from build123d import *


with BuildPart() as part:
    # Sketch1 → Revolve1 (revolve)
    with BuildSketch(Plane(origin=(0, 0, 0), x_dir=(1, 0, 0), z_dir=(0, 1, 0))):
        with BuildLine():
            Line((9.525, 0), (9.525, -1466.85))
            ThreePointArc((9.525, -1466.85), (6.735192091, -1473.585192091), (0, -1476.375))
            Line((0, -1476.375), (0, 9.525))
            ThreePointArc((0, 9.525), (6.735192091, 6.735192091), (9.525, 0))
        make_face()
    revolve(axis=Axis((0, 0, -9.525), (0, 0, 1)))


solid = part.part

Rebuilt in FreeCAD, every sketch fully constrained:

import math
import FreeCAD as App
import Part
import Sketcher
Q = App.Units.Quantity

doc = App.newDocument("Part")
body = doc.addObject("PartDesign::Body", "Body")

sketch1 = doc.addObject("Sketcher::SketchObject", "Sketch")
body.addObject(sketch1)
sketch1.AttachmentSupport = (doc.XZ_Plane, [""])
sketch1.MapMode = "FlatFace"
sketch1.addGeometry([
    Part.LineSegment(App.Vector(10, 1467, 0), App.Vector(10, 0, 0)),
    Part.ArcOfCircle(Part.Circle(App.Vector(0, 0, 0), App.Vector(0, 0, 1), 10), math.radians(-90), math.radians(0)),
    Part.LineSegment(App.Vector(0, -10, 0), App.Vector(0, 1476, 0)),
    Part.ArcOfCircle(Part.Circle(App.Vector(0, 1467, 0), App.Vector(0, 0, 1), 10), math.radians(0), math.radians(90)),
], False)
sketch1.addConstraint([
    Sketcher.Constraint("Tangent", 0, 2, 1, 2),
    Sketcher.Constraint("Coincident", 1, 1, 2, 1),
    Sketcher.Constraint("Coincident", 2, 2, 3, 2),
    Sketcher.Constraint("Tangent", 3, 1, 0, 1),
    Sketcher.Constraint("Vertical", 0),
    Sketcher.Constraint("Vertical", 2),
    Sketcher.Constraint("Coincident", 1, 3, -1, 1),
    Sketcher.Constraint("Equal", 1, 3),
    Sketcher.Constraint("PointOnObject", 1, 1, -2),
    Sketcher.Constraint("DistanceY", 2, 1, 2, 2, Q("58.5 in")),
    Sketcher.Constraint("Radius", 1, Q("0.375 in")),
])
revolution = doc.addObject("PartDesign::Revolution", "Revolution")
body.addObject(revolution)
revolution.Profile = sketch1
revolution.ReferenceAxis = (sketch1, ["V_Axis"])
revolution.Angle = 360

doc.recompute()
